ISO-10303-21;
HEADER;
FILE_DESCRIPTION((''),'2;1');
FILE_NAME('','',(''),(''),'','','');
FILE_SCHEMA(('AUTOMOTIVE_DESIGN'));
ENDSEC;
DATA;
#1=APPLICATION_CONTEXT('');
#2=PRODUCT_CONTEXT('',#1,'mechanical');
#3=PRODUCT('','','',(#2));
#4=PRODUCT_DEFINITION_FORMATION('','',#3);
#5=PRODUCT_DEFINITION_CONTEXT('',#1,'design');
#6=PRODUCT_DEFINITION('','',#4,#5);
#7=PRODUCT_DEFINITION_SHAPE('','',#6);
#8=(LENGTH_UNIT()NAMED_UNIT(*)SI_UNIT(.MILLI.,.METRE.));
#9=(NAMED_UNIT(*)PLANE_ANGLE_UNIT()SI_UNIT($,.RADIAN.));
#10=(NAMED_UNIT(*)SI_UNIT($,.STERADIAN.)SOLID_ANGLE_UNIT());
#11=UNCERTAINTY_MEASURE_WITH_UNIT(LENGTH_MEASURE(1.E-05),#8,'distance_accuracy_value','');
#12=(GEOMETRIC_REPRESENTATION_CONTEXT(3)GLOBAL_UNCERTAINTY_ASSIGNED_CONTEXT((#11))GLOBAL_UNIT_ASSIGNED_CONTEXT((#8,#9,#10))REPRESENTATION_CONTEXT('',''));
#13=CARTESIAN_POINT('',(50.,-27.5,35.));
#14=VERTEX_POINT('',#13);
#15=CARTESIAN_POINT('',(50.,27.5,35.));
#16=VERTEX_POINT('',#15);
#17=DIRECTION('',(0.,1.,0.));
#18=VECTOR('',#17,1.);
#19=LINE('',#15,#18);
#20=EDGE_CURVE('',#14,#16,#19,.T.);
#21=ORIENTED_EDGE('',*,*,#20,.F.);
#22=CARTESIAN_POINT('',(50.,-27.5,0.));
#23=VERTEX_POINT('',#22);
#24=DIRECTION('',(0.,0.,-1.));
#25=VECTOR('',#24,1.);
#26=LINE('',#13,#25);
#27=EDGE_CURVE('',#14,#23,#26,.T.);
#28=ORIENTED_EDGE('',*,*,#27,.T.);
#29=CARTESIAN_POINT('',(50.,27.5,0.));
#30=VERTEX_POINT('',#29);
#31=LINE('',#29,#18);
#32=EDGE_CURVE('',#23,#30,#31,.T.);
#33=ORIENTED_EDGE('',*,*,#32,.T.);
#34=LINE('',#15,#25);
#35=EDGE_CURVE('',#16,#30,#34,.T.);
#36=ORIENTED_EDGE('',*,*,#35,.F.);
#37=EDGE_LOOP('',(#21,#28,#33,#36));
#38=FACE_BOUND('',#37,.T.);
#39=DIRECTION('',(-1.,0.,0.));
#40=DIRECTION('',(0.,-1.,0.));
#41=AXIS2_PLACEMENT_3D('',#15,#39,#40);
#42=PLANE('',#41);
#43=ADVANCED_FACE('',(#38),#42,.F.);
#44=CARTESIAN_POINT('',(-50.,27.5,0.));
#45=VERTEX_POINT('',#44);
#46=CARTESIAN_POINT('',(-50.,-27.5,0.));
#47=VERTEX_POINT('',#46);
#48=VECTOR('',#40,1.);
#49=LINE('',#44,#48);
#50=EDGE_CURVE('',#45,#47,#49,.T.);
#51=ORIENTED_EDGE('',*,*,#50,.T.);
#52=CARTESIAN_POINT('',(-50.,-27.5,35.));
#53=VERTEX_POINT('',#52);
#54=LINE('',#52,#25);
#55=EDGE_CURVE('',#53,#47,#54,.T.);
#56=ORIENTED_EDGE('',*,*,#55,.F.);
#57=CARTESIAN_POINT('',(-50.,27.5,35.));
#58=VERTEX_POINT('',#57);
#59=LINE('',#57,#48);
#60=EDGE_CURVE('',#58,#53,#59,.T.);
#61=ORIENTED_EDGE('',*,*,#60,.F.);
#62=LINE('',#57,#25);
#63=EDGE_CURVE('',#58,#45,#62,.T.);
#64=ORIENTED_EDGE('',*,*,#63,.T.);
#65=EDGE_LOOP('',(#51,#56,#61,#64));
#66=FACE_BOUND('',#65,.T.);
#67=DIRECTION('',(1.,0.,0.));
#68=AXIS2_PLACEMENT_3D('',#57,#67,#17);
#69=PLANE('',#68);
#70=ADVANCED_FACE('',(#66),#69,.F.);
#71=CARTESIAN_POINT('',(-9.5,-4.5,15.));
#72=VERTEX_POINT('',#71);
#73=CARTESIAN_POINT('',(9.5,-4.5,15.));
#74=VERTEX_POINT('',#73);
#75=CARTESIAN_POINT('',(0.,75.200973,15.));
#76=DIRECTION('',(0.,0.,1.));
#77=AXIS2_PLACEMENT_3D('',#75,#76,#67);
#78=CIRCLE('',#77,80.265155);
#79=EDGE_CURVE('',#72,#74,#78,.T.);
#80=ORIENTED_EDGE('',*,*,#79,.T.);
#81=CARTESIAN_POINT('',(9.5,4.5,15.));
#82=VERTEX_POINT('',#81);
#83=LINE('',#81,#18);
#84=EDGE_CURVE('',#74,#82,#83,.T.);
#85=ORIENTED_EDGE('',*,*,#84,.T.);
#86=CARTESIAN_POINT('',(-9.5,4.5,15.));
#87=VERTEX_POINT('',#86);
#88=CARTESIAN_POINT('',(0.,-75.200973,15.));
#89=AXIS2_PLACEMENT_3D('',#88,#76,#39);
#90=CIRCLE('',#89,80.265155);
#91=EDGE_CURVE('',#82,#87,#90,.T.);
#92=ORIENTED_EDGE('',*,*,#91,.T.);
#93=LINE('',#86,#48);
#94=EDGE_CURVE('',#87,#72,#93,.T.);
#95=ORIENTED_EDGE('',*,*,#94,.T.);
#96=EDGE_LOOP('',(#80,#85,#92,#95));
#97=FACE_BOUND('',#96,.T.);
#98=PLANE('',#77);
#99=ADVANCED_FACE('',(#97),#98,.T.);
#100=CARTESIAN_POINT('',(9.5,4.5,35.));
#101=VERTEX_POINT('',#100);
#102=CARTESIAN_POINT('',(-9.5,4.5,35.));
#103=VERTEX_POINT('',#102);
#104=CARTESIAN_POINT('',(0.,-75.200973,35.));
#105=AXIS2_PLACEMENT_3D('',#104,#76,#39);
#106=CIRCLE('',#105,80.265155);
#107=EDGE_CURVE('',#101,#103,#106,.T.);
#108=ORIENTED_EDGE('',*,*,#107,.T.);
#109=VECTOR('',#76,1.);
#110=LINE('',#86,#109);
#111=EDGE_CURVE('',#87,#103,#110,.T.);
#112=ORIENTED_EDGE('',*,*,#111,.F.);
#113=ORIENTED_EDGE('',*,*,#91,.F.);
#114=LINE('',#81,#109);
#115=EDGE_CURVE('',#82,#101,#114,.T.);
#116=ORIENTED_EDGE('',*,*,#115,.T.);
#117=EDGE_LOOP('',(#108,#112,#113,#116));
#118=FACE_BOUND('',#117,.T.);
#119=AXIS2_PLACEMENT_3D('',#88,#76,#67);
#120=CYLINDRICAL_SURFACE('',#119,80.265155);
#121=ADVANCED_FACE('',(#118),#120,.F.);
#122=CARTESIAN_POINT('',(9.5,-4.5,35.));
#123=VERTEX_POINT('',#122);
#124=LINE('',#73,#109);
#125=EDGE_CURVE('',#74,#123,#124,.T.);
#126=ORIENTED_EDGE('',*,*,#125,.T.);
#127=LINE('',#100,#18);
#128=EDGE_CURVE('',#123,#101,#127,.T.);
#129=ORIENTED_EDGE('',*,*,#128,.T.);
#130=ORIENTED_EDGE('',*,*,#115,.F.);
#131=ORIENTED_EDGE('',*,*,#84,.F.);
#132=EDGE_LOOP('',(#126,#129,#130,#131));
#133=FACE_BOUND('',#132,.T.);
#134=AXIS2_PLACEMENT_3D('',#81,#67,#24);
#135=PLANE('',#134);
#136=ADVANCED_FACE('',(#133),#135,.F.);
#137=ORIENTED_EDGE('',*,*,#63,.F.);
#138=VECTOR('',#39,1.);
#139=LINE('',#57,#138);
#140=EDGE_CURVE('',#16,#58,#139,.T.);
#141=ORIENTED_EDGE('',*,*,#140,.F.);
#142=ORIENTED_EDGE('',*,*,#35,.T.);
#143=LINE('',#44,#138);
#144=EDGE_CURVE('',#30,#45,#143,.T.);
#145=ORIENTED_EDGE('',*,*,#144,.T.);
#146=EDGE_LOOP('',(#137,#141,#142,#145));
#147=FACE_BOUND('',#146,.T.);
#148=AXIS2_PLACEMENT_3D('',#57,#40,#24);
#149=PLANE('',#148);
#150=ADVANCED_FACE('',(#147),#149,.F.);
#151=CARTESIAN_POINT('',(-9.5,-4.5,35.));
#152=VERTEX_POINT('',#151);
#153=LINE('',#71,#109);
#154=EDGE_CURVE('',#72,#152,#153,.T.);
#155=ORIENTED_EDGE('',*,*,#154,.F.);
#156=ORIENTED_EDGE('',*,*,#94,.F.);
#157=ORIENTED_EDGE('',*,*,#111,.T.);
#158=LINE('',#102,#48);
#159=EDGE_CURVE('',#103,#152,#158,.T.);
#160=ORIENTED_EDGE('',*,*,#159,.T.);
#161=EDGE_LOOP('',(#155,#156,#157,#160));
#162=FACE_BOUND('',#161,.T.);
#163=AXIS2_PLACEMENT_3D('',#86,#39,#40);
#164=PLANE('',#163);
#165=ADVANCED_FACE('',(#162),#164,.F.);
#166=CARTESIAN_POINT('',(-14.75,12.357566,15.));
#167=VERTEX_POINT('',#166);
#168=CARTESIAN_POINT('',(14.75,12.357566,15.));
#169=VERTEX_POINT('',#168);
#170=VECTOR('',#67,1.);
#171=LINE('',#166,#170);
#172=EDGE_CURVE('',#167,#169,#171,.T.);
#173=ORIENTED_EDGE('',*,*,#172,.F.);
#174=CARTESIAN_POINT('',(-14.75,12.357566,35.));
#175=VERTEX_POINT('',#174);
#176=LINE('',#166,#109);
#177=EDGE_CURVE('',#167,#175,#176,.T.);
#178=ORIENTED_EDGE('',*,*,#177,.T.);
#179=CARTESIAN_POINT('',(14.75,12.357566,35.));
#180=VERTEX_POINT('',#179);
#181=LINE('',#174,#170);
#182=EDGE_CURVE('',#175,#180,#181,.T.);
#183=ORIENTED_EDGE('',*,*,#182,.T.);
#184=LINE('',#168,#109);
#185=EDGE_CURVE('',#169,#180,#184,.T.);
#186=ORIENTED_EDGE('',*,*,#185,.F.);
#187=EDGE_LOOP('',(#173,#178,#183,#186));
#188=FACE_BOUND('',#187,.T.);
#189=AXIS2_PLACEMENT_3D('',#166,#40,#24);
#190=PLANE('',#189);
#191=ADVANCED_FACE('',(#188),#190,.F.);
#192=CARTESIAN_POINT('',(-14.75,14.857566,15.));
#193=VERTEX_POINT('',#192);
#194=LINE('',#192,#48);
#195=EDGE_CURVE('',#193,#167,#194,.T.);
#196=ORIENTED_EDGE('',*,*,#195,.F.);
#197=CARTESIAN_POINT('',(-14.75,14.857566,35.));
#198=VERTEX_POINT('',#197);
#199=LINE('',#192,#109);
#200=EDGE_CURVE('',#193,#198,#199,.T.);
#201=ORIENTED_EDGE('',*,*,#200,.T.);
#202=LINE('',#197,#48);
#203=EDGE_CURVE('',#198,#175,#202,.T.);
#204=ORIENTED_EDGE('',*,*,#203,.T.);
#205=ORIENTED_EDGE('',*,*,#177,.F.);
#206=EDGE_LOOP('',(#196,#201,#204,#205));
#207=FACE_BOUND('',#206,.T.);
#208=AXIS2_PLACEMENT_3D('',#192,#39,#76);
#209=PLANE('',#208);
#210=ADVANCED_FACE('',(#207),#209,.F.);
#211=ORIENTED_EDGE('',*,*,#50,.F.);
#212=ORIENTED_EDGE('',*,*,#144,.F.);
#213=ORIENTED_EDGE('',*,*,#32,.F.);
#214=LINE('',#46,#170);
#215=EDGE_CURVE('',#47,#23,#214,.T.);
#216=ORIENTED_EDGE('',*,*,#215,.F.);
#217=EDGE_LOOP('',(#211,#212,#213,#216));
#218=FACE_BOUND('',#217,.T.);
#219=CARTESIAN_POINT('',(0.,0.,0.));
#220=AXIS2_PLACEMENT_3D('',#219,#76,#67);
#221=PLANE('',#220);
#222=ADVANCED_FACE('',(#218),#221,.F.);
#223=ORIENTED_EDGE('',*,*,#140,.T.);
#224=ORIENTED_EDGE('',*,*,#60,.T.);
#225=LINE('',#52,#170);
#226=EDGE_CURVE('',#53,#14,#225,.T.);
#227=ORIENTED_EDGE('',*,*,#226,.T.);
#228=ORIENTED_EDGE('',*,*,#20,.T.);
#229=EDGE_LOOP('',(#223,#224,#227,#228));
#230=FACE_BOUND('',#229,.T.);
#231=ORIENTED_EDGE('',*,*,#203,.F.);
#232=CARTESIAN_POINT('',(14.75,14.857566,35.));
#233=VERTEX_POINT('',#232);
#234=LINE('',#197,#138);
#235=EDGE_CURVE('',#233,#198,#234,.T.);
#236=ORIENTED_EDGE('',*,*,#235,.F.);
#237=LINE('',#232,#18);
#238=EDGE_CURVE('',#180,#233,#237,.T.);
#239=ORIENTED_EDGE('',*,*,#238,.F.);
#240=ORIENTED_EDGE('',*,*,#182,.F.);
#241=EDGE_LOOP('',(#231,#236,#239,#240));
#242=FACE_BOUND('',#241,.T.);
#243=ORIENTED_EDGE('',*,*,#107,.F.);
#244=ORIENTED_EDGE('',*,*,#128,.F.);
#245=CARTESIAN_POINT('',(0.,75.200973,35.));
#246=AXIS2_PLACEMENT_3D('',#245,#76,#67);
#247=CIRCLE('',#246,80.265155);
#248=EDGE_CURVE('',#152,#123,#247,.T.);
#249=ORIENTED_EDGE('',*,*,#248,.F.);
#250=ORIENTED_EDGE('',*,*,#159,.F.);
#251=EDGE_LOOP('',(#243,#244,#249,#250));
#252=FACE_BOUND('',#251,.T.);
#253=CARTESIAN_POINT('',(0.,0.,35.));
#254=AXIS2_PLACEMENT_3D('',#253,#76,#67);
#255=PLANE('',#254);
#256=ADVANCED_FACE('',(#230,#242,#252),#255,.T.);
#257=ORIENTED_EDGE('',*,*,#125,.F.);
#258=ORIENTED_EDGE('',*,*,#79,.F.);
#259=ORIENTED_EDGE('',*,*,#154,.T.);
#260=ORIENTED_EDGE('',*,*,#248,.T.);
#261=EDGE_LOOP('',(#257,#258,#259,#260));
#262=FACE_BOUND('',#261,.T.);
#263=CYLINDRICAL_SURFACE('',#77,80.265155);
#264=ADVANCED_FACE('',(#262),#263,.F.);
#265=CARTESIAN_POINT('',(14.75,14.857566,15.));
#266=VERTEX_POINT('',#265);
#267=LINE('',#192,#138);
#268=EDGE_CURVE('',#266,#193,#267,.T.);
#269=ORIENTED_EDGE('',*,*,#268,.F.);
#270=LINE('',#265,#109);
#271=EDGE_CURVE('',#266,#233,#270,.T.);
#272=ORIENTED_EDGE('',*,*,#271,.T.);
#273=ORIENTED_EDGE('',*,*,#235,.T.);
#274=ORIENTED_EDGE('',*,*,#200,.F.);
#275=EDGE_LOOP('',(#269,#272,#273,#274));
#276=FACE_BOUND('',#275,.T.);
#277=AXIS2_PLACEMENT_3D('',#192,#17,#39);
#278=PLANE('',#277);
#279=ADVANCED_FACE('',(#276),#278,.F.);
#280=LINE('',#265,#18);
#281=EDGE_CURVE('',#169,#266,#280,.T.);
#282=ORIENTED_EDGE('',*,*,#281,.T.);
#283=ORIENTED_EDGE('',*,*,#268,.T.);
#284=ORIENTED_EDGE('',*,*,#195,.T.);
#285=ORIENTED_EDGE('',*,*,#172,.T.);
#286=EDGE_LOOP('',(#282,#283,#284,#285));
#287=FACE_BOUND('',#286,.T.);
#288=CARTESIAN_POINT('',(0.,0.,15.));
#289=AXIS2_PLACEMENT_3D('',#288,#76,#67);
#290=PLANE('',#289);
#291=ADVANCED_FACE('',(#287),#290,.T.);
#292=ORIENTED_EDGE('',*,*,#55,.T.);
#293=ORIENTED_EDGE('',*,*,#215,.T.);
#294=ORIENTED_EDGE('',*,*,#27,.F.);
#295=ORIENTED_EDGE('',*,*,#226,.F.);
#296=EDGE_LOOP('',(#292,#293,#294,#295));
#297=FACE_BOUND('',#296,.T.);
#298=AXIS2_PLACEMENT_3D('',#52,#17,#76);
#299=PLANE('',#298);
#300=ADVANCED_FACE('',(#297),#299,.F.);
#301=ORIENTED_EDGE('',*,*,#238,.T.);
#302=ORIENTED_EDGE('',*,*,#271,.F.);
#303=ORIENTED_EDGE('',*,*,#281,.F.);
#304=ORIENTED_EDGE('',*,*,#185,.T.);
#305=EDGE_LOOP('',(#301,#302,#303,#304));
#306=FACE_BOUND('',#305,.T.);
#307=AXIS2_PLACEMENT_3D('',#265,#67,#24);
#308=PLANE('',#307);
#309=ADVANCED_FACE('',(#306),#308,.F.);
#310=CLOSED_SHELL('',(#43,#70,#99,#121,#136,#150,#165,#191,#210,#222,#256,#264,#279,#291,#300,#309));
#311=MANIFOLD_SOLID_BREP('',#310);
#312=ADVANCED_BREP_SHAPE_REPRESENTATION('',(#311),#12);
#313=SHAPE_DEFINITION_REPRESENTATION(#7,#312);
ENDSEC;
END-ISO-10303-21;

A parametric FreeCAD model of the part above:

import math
import FreeCAD as App
import Part
import Sketcher

V = App.Vector
Q = App.Units.Quantity

doc = App.newDocument("Part")
body = doc.addObject("PartDesign::Body", "Body")

# Sketch on XY plane
sketch1 = body.newObject("Sketcher::SketchObject", "Sketch")
sketch1.AttachmentSupport = (doc.getObject("XY_Plane"), [""])
sketch1.MapMode = "FlatFace"
sketch1.addGeometry(Part.LineSegment(V(-50, 28, 0), V(-50, -28, 0)), False)
sketch1.addGeometry(Part.LineSegment(V(-50, -28, 0), V(50, -28, 0)), False)
sketch1.addGeometry(Part.LineSegment(V(50, -28, 0), V(50, 28, 0)), False)
sketch1.addGeometry(Part.LineSegment(V(50, 28, 0), V(-50, 28, 0)), False)
sketch1.addConstraint(Sketcher.Constraint("Coincident", 0, 2, 1, 1))
sketch1.addConstraint(Sketcher.Constraint("Coincident", 1, 2, 2, 1))
sketch1.addConstraint(Sketcher.Constraint("Coincident", 2, 2, 3, 1))
sketch1.addConstraint(Sketcher.Constraint("Coincident", 3, 2, 0, 1))
sketch1.addConstraint(Sketcher.Constraint("Vertical", 0))
sketch1.addConstraint(Sketcher.Constraint("Horizontal", 1))
sketch1.addConstraint(Sketcher.Constraint("Vertical", 2))
sketch1.addConstraint(Sketcher.Constraint("Horizontal", 3))
sketch1.addConstraint(Sketcher.Constraint("Symmetric", 0, 2, 2, 2, -1, 1))
sketch1.addConstraint(Sketcher.Constraint("DistanceX", 1, 1, 1, 2, Q("100 mm")))
sketch1.addConstraint(Sketcher.Constraint("DistanceY", 0, 2, 0, 1, Q("55 mm")))
pad1 = body.newObject("PartDesign::Pad", "Pad")
pad1.Profile = sketch1
pad1.Length = 35

# Sketch on XY plane
sketch2 = body.newObject("Sketcher::SketchObject", "Sketch001")
sketch2.AttachmentSupport = (doc.getObject("XY_Plane"), [""])
sketch2.MapMode = "FlatFace"
sketch2.AttachmentOffset = App.Placement(V(0, 0, 35), App.Rotation())
sketch2.addGeometry(Part.LineSegment(V(-9.5, 4.5, 0), V(-9.5, -4.5, 0)), False)
sketch2.addGeometry(Part.ArcOfCircle(Part.Circle(V(0, 75.2, 0), V(0, 0, 1), 80.3), math.radians(-96.8), math.radians(-83.2)), False)
sketch2.addGeometry(Part.LineSegment(V(9.5, -4.5, 0), V(9.5, 4.5, 0)), False)
sketch2.addGeometry(Part.ArcOfCircle(Part.Circle(V(0, -75.2, 0), V(0, 0, 1), 80.3), math.radians(83.2), math.radians(96.8)), False)
sketch2.addGeometry(Part.LineSegment(V(-14.8, 14.9, 0), V(-14.8, 12.4, 0)), False)
sketch2.addGeometry(Part.LineSegment(V(-14.8, 12.4, 0), V(14.8, 12.4, 0)), False)
sketch2.addGeometry(Part.LineSegment(V(14.8, 12.4, 0), V(14.8, 14.9, 0)), False)
sketch2.addGeometry(Part.LineSegment(V(14.8, 14.9, 0), V(-14.8, 14.9, 0)), False)
sketch2.addConstraint(Sketcher.Constraint("Coincident", 0, 2, 1, 1))
sketch2.addConstraint(Sketcher.Constraint("Coincident", 1, 2, 2, 1))
sketch2.addConstraint(Sketcher.Constraint("Coincident", 2, 2, 3, 1))
sketch2.addConstraint(Sketcher.Constraint("Coincident", 3, 2, 0, 1))
sketch2.addConstraint(Sketcher.Constraint("Coincident", 4, 2, 5, 1))
sketch2.addConstraint(Sketcher.Constraint("Coincident", 5, 2, 6, 1))
sketch2.addConstraint(Sketcher.Constraint("Coincident", 6, 2, 7, 1))
sketch2.addConstraint(Sketcher.Constraint("Coincident", 7, 2, 4, 1))
sketch2.addConstraint(Sketcher.Constraint("Vertical", 0))
sketch2.addConstraint(Sketcher.Constraint("Vertical", 2))
sketch2.addConstraint(Sketcher.Constraint("Vertical", 4))
sketch2.addConstraint(Sketcher.Constraint("Horizontal", 5))
sketch2.addConstraint(Sketcher.Constraint("Vertical", 6))
sketch2.addConstraint(Sketcher.Constraint("Horizontal", 7))
sketch2.addConstraint(Sketcher.Constraint("Equal", 1, 3))
sketch2.addConstraint(Sketcher.Constraint("Symmetric", 1, 3, 3, 3, -1, 1))
sketch2.addConstraint(Sketcher.Constraint("Symmetric", 0, 2, 1, 2, -2))
sketch2.addConstraint(Sketcher.Constraint("DistanceY", 0, 2, 0, 1, Q("9 mm")))
sketch2.addConstraint(Sketcher.Constraint("DistanceX", 5, 1, 5, 2, Q("29.5 mm")))
sketch2.addConstraint(Sketcher.Constraint("DistanceY", 4, 2, 4, 1, Q("2.5 mm")))
sketch2.addConstraint(Sketcher.Constraint("DistanceX", 0, 2, 1, 2, Q("19 mm")))
sketch2.addConstraint(Sketcher.Constraint("DistanceX", 4, 2, -1, 1, Q("14.75 mm")))
sketch2.addConstraint(Sketcher.Constraint("Radius", 1, Q("80.265155 mm")))
sketch2.addConstraint(Sketcher.Constraint("DistanceY", -1, 1, 4, 2, Q("12.357566 mm")))
pocket1 = body.newObject("PartDesign::Pocket", "Pocket")
pocket1.Profile = sketch2
pocket1.Length = 20

doc.recompute()
